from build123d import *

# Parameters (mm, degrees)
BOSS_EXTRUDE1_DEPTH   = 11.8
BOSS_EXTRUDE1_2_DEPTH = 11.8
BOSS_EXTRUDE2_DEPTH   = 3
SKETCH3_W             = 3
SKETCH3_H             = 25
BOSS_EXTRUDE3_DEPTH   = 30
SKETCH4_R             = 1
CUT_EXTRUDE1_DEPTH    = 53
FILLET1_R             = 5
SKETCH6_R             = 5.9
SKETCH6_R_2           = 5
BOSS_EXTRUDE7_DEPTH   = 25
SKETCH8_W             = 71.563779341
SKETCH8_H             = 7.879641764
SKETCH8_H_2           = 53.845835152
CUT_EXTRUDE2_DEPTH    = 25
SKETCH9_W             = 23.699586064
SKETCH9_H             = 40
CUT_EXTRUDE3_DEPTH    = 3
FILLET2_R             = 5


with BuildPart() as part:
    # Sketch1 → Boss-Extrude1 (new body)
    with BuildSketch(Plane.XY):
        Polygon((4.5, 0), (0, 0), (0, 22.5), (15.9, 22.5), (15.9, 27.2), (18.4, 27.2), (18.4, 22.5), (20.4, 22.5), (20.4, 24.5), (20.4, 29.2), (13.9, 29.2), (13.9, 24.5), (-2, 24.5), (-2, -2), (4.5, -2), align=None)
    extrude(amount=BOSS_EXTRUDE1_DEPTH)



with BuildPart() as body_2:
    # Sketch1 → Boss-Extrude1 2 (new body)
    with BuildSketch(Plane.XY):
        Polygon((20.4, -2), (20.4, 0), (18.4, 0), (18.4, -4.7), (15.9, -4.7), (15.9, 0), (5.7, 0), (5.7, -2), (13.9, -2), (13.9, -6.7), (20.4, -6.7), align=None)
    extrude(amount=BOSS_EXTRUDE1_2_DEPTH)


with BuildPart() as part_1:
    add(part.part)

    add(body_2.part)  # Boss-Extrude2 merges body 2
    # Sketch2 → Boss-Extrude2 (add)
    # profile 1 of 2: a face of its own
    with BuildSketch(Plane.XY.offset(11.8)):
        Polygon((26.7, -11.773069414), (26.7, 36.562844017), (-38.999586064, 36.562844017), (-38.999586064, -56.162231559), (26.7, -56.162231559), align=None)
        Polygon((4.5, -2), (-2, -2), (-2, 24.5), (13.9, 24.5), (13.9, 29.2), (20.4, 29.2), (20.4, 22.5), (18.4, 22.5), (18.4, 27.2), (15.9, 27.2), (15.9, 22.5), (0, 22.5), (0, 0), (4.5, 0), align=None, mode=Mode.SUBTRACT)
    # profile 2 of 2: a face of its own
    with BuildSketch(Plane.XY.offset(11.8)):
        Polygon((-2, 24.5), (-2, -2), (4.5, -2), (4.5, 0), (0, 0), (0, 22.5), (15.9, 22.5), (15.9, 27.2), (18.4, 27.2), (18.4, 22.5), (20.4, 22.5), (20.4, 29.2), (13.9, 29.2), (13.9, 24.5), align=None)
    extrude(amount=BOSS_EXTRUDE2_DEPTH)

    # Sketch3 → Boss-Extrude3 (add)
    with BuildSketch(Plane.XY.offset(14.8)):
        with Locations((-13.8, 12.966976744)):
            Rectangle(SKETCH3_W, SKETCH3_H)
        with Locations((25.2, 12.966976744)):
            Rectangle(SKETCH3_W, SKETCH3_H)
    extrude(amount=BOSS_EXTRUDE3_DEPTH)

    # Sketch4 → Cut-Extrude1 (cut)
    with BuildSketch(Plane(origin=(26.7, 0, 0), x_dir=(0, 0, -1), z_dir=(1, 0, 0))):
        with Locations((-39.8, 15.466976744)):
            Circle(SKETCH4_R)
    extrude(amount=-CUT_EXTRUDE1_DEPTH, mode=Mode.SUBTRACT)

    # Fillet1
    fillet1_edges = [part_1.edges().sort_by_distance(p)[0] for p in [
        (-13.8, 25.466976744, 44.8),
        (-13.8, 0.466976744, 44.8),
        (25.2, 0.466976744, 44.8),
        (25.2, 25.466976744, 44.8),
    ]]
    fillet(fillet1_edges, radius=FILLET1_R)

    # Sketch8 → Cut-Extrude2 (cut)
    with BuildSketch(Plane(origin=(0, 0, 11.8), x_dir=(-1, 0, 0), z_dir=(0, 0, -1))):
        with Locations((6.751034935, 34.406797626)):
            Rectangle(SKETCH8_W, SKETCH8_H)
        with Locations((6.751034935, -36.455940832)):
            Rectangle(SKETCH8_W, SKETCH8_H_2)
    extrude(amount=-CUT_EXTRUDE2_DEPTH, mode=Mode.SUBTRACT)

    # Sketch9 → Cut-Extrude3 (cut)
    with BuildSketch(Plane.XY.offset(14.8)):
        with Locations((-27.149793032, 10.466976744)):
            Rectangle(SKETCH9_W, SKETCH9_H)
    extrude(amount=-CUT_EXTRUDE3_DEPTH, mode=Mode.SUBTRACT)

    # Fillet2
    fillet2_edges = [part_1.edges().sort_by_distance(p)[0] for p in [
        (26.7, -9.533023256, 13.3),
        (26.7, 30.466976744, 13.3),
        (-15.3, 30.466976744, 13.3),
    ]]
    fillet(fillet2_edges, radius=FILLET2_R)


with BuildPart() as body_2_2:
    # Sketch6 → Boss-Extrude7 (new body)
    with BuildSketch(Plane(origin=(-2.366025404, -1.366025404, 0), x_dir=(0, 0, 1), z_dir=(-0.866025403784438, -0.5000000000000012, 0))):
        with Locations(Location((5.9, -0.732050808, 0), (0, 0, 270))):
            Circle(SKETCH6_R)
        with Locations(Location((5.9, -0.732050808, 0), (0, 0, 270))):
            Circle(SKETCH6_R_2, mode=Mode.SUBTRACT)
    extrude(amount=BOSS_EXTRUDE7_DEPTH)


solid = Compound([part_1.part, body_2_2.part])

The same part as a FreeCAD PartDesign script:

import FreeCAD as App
import Part
import Sketcher
from FreeCAD import Vector


def edges_at(feature, points):
    """Names of the edges that pass closest to the given points."""
    edges = feature.Shape.Edges
    near = lambda p: min(range(len(edges)), key=lambda i: edges[i].distToShape(Part.Vertex(*p))[0])
    return sorted({f"Edge{near(p) + 1}" for p in points})

doc = App.newDocument("Part")
body = doc.addObject("PartDesign::Body", "Body")

# Sketch on XY plane
sketch1 = body.newObject("Sketcher::SketchObject", "Sketch")
sketch1.AttachmentSupport = (doc.getObject("XY_Plane"), [""])
sketch1.MapMode = "FlatFace"
sketch1.addGeometry([
    Part.LineSegment(Vector(4.5, 0, 0), Vector(0, 0, 0)),  # 0
    Part.LineSegment(Vector(0, 0, 0), Vector(0, 22.5, 0)),  # 1
    Part.LineSegment(Vector(0, 22.5, 0), Vector(15.9, 22.5, 0)),  # 2
    Part.LineSegment(Vector(15.9, 22.5, 0), Vector(15.9, 27.2, 0)),  # 3
    Part.LineSegment(Vector(15.9, 27.2, 0), Vector(18.4, 27.2, 0)),  # 4
    Part.LineSegment(Vector(18.4, 27.2, 0), Vector(18.4, 22.5, 0)),  # 5
    Part.LineSegment(Vector(18.4, 22.5, 0), Vector(20.4, 22.5, 0)),  # 6
    Part.LineSegment(Vector(20.4, 22.5, 0), Vector(20.4, 29.2, 0)),  # 7
    Part.LineSegment(Vector(20.4, 29.2, 0), Vector(13.9, 29.2, 0)),  # 8
    Part.LineSegment(Vector(13.9, 29.2, 0), Vector(13.9, 24.5, 0)),  # 9
    Part.LineSegment(Vector(13.9, 24.5, 0), Vector(-2, 24.5, 0)),  # 10
    Part.LineSegment(Vector(-2, 24.5, 0), Vector(-2, -2, 0)),  # 11
    Part.LineSegment(Vector(-2, -2, 0), Vector(4.5, -2, 0)),  # 12
    Part.LineSegment(Vector(4.5, -2, 0), Vector(4.5, 0, 0)),  # 13
], False)
sketch1.addConstraint([
    Sketcher.Constraint("Coincident", 0, 2, 1, 1),
    Sketcher.Constraint("Coincident", 1, 2, 2, 1),
    Sketcher.Constraint("Coincident", 2, 2, 3, 1),
    Sketcher.Constraint("Coincident", 3, 2, 4, 1),
    Sketcher.Constraint("Coincident", 4, 2, 5, 1),
    Sketcher.Constraint("Coincident", 5, 2, 6, 1),
    Sketcher.Constraint("Coincident", 6, 2, 7, 1),
    Sketcher.Constraint("Coincident", 7, 2, 8, 1),
    Sketcher.Constraint("Coincident", 8, 2, 9, 1),
    Sketcher.Constraint("Coincident", 9, 2, 10, 1),
    Sketcher.Constraint("Coincident", 10, 2, 11, 1),
    Sketcher.Constraint("Coincident", 11, 2, 12, 1),
    Sketcher.Constraint("Coincident", 12, 2, 13, 1),
    Sketcher.Constraint("Coincident", 13, 2, 0, 1),
    Sketcher.Constraint("Horizontal", 0),
    Sketcher.Constraint("Vertical", 1),
    Sketcher.Constraint("Horizontal", 2),
    Sketcher.Constraint("Vertical", 3),
    Sketcher.Constraint("Horizontal", 4),
    Sketcher.Constraint("Vertical", 5),
    Sketcher.Constraint("Horizontal", 6),
    Sketcher.Constraint("Vertical", 7),
    Sketcher.Constraint("Horizontal", 8),
    Sketcher.Constraint("Vertical", 9),
    Sketcher.Constraint("Horizontal", 10),
    Sketcher.Constraint("Vertical", 11),
    Sketcher.Constraint("Horizontal", 12),
    Sketcher.Constraint("Vertical", 13),
    Sketcher.Constraint("Coincident", 0, 2, -1, 1),
    Sketcher.Constraint("Horizontal", 2, 2, 5, 2),
    Sketcher.Constraint("Equal", 2, 10),
    Sketcher.Constraint("Equal", 8, 12),
    Sketcher.Constraint("Equal", 5, 9),
    Sketcher.Constraint("Equal", 6, 13),
    Sketcher.Constraint("DistanceX", 6, 1, 6, 2, 2.0),
    Sketcher.Constraint("DistanceX", 0, 2, 0, 1, 4.5),
    Sketcher.Constraint("DistanceX", 2, 1, 2, 2, 15.9),
    Sketcher.Constraint("DistanceX", 8, 2, 8, 1, 6.5),
    Sketcher.Constraint("DistanceY", 1, 1, 1, 2, 22.5),
    Sketcher.Constraint("DistanceY", 3, 1, 3, 2, 4.7),
    Sketcher.Constraint("DistanceY", 7, 1, 7, 2, 6.7),
])
pad1 = body.newObject("PartDesign::Pad", "Pad")
pad1.Profile = sketch1
pad1.Length = 11.8
body2 = doc.addObject("PartDesign::Body", "Body001")

# Sketch on XY plane
sketch2 = body2.newObject("Sketcher::SketchObject", "Sketch001")
sketch2.AttachmentSupport = (doc.getObject("XY_Plane001"), [""])
sketch2.MapMode = "FlatFace"
sketch2.addGeometry([
    Part.LineSegment(Vector(20.4, 0, 0), Vector(18.4, 0, 0)),  # 0
    Part.LineSegment(Vector(18.4, 0, 0), Vector(18.4, -4.7, 0)),  # 1
    Part.LineSegment(Vector(18.4, -4.7, 0), Vector(15.9, -4.7, 0)),  # 2
    Part.LineSegment(Vector(15.9, -4.7, 0), Vector(15.9, 0, 0)),  # 3
    Part.LineSegment(Vector(15.9, 0, 0), Vector(5.7, 0, 0)),  # 4
    Part.LineSegment(Vector(5.7, 0, 0), Vector(5.7, -2, 0)),  # 5
    Part.LineSegment(Vector(5.7, -2, 0), Vector(13.9, -2, 0)),  # 6
    Part.LineSegment(Vector(13.9, -2, 0), Vector(13.9, -6.7, 0)),  # 7
    Part.LineSegment(Vector(13.9, -6.7, 0), Vector(20.4, -6.7, 0)),  # 8
    Part.LineSegment(Vector(20.4, -6.7, 0), Vector(20.4, 0, 0)),  # 9
], False)
sketch2.addConstraint([
    Sketcher.Constraint("Coincident", 0, 2, 1, 1),
    Sketcher.Constraint("Coincident", 1, 2, 2, 1),
    Sketcher.Constraint("Coincident", 2, 2, 3, 1),
    Sketcher.Constraint("Coincident", 3, 2, 4, 1),
    Sketcher.Constraint("Coincident", 4, 2, 5, 1),
    Sketcher.Constraint("Coincident", 5, 2, 6, 1),
    Sketcher.Constraint("Coincident", 6, 2, 7, 1),
    Sketcher.Constraint("Coincident", 7, 2, 8, 1),
    Sketcher.Constraint("Coincident", 8, 2, 9, 1),
    Sketcher.Constraint("Coincident", 9, 2, 0, 1),
    Sketcher.Constraint("Horizontal", 0),
    Sketcher.Constraint("Vertical", 1),
    Sketcher.Constraint("Horizontal", 2),
    Sketcher.Constraint("Vertical", 3),
    Sketcher.Constraint("Horizontal", 4),
    Sketcher.Constraint("Vertical", 5),
    Sketcher.Constraint("Horizontal", 6),
    Sketcher.Constraint("Vertical", 7),
    Sketcher.Constraint("Horizontal", 8),
    Sketcher.Constraint("Vertical", 9),
    Sketcher.Constraint("PointOnObject", 0, 2, -1),
    Sketcher.Constraint("PointOnObject", 3, 2, -1),
    Sketcher.Constraint("Equal", 0, 5),
    Sketcher.Constraint("Equal", 3, 7),
    Sketcher.Constraint("DistanceX", 0, 2, 0, 1, 2.0),
    Sketcher.Constraint("DistanceX", 2, 2, 2, 1, 2.5),
    Sketcher.Constraint("DistanceX", 4, 2, 4, 1, 10.2),
    Sketcher.Constraint("DistanceX", 6, 1, 6, 2, 8.2),
    Sketcher.Constraint("DistanceY", 1, 2, 1, 1, 4.7),
    Sketcher.Constraint("DistanceX", -1, 1, 0, 2, 18.4),
])
pad2 = body2.newObject("PartDesign::Pad", "Pad001")
pad2.Profile = sketch2
pad2.Length = 11.8
body.AllowCompound = True
doc.recompute()

boolean = body.newObject("PartDesign::Boolean", "Boolean")
boolean.Type = "Fuse"
boolean.addObjects([body2])

# Sketch on XY plane
sketch3 = body.newObject("Sketcher::SketchObject", "Sketch002")
sketch3.AttachmentSupport = (doc.getObject("XY_Plane"), [""])
sketch3.MapMode = "FlatFace"
sketch3.AttachmentOffset = App.Placement(Vector(0, 0, 11.8), App.Rotation())
sketch3.addGeometry([
    Part.LineSegment(Vector(27, 37, 0), Vector(-39, 37, 0)),
    Part.LineSegment(Vector(-39, 37, 0), Vector(-39, -56, 0)),
    Part.LineSegment(Vector(-39, -56, 0), Vector(27, -56, 0)),
    Part.LineSegment(Vector(27, -56, 0), Vector(27, 37, 0)),
], False)
sketch3.addConstraint([
    Sketcher.Constraint("Coincident", 0, 2, 1, 1),
    Sketcher.Constraint("Coincident", 1, 2, 2, 1),
    Sketcher.Constraint("Coincident", 2, 2, 3, 1),
    Sketcher.Constraint("Coincident", 3, 2, 0, 1),
    Sketcher.Constraint("Horizontal", 0),
    Sketcher.Constraint("Vertical", 1),
    Sketcher.Constraint("Horizontal", 2),
    Sketcher.Constraint("Vertical", 3),
    Sketcher.Constraint("DistanceX", -1, 1, 2, 2, 26.7),
    Sketcher.Constraint("DistanceX", 0, 2, 0, 1, 65.699586),
    Sketcher.Constraint("DistanceY", 1, 2, 1, 1, 92.725076),
    Sketcher.Constraint("DistanceY", 1, 2, -1, 1, 56.162232),
])
pad3 = body.newObject("PartDesign::Pad", "Pad002")
pad3.Profile = sketch3
pad3.Length = 3

# Sketch on XY plane
sketch4 = body.newObject("Sketcher::SketchObject", "Sketch003")
sketch4.AttachmentSupport = (doc.getObject("XY_Plane"), [""])
sketch4.MapMode = "FlatFace"
sketch4.AttachmentOffset = App.Placement(Vector(0, 0, 14.8), App.Rotation())
sketch4.addGeometry([
    Part.LineSegment(Vector(-15.3, 25.5, 0), Vector(-15.3, 0.5, 0)),  # 0
    Part.LineSegment(Vector(-15.3, 0.5, 0), Vector(-12.3, 0.5, 0)),  # 1
    Part.LineSegment(Vector(-12.3, 0.5, 0), Vector(-12.3, 25.5, 0)),  # 2
    Part.LineSegment(Vector(-12.3, 25.5, 0), Vector(-15.3, 25.5, 0)),  # 3
    Part.LineSegment(Vector(23.7, 25.5, 0), Vector(23.7, 0.5, 0)),  # 4
    Part.LineSegment(Vector(23.7, 0.5, 0), Vector(26.7, 0.5, 0)),  # 5
    Part.LineSegment(Vector(26.7, 0.5, 0), Vector(26.7, 25.5, 0)),  # 6
    Part.LineSegment(Vector(26.7, 25.5, 0), Vector(23.7, 25.5, 0)),  # 7
], False)
sketch4.addConstraint([
    Sketcher.Constraint("Coincident", 0, 2, 1, 1),
    Sketcher.Constraint("Coincident", 1, 2, 2, 1),
    Sketcher.Constraint("Coincident", 2, 2, 3, 1),
    Sketcher.Constraint("Coincident", 3, 2, 0, 1),
    Sketcher.Constraint("Coincident", 4, 2, 5, 1),
    Sketcher.Constraint("Coincident", 5, 2, 6, 1),
    Sketcher.Constraint("Coincident", 6, 2, 7, 1),
    Sketcher.Constraint("Coincident", 7, 2, 4, 1),
    Sketcher.Constraint("Vertical", 0),
    Sketcher.Constraint("Horizontal", 1),
    Sketcher.Constraint("Vertical", 2),
    Sketcher.Constraint("Horizontal", 3),
    Sketcher.Constraint("Vertical", 4),
    Sketcher.Constraint("Horizontal", 5),
    Sketcher.Constraint("Vertical", 6),
    Sketcher.Constraint("Horizontal", 7),
    Sketcher.Constraint("Horizontal", 1, 2, 4, 2),
    Sketcher.Constraint("Horizontal", 3, 2, 6, 2),
    Sketcher.Constraint("Equal", 3, 5),
    Sketcher.Constraint("DistanceX", 1, 1, 1, 2, 3.0),
    Sketcher.Constraint("DistanceY", 0, 2, 0, 1, 25.0),
    Sketcher.Constraint("DistanceX", 1, 2, 4, 2, 36.0),
    Sketcher.Constraint("DistanceX", 0, 2, -1, 1, 15.3),
    Sketcher.Constraint("DistanceY", -1, 1, 0, 2, 0.466977),
])
pad4 = body.newObject("PartDesign::Pad", "Pad003")
pad4.Profile = sketch4
pad4.Length = 30

# Sketch on YZ plane
sketch5 = body.newObject("Sketcher::SketchObject", "Sketch004")
sketch5.AttachmentSupport = (doc.getObject("YZ_Plane"), [""])
sketch5.MapMode = "FlatFace"
sketch5.AttachmentOffset = App.Placement(Vector(0, 0, 26.7), App.Rotation())
sketch5.addGeometry(Part.Circle(Vector(15.5, 39.8, 0), Vector(0, 0, 1), 1), False)
sketch5.addConstraint([
    Sketcher.Constraint("Diameter", 0, 2.0),
    Sketcher.Constraint("DistanceY", -1, 1, 0, 3, 39.8),
    Sketcher.Constraint("DistanceX", -1, 1, 0, 3, 15.466977),
])
pocket1 = body.newObject("PartDesign::Pocket", "Pocket")
pocket1.Profile = sketch5
pocket1.Length = 53
doc.recompute()

fillet = body.newObject("PartDesign::Fillet", "Fillet")
fillet.Base = (pocket1, edges_at(pocket1, [
    (-13.8, 25.467, 44.8),
    (-13.8, 0.467, 44.8),
    (25.2, 0.467, 44.8),
    (25.2, 25.467, 44.8),
]))
fillet.Radius = 5

# Sketch on XY plane
sketch6 = body.newObject("Sketcher::SketchObject", "Sketch005")
sketch6.AttachmentSupport = (doc.getObject("XY_Plane"), [""])
sketch6.MapMode = "FlatFace"
sketch6.AttachmentOffset = App.Placement(Vector(0, 0, 11.8), App.Rotation())
sketch6.addGeometry([
    Part.LineSegment(Vector(29, 38, 0), Vector(29, 30, 0)),  # 0
    Part.LineSegment(Vector(29, 30, 0), Vector(-43, 30, 0)),  # 1
    Part.LineSegment(Vector(-43, 30, 0), Vector(-43, 38, 0)),  # 2
    Part.LineSegment(Vector(-43, 38, 0), Vector(29, 38, 0)),  # 3
    Part.LineSegment(Vector(29, -10, 0), Vector(29, -63, 0)),  # 4
    Part.LineSegment(Vector(29, -63, 0), Vector(-43, -63, 0)),  # 5
    Part.LineSegment(Vector(-43, -63, 0), Vector(-43, -10, 0)),  # 6
    Part.LineSegment(Vector(-43, -10, 0), Vector(29, -10, 0)),  # 7
], False)
sketch6.addConstraint([
    Sketcher.Constraint("Coincident", 0, 2, 1, 1),
    Sketcher.Constraint("Coincident", 1, 2, 2, 1),
    Sketcher.Constraint("Coincident", 2, 2, 3, 1),
    Sketcher.Constraint("Coincident", 3, 2, 0, 1),
    Sketcher.Constraint("Coincident", 4, 2, 5, 1),
    Sketcher.Constraint("Coincident", 5, 2, 6, 1),
    Sketcher.Constraint("Coincident", 6, 2, 7, 1),
    Sketcher.Constraint("Coincident", 7, 2, 4, 1),
    Sketcher.Constraint("Vertical", 0),
    Sketcher.Constraint("Horizontal", 1),
    Sketcher.Constraint("Vertical", 2),
    Sketcher.Constraint("Horizontal", 3),
    Sketcher.Constraint("Vertical", 4),
    Sketcher.Constraint("Horizontal", 5),
    Sketcher.Constraint("Vertical", 6),
    Sketcher.Constraint("Horizontal", 7),
    Sketcher.Constraint("Vertical", 3, 2, 4, 2),
    Sketcher.Constraint("Vertical", 2, 2, 5, 2),
    Sketcher.Constraint("DistanceY", 6, 2, 1, 2, 40.0),
    Sketcher.Constraint("DistanceX", 1, 2, 1, 1, 71.563779),
    Sketcher.Constraint("DistanceY", 0, 2, 0, 1, 7.879642),
    Sketcher.Constraint("DistanceY", 4, 2, 4, 1, 53.845835),
    Sketcher.Constraint("DistanceY", -1, 1, 2, 2, 38.346619),
    Sketcher.Constraint("DistanceX", -1, 1, 0, 2, 29.030855),
])
pocket2 = body.newObject("PartDesign::Pocket", "Pocket001")
pocket2.Profile = sketch6
pocket2.Length = 25
pocket2.Reversed = True

# Sketch on XY plane
sketch7 = body.newObject("Sketcher::SketchObject", "Sketch006")
sketch7.AttachmentSupport = (doc.getObject("XY_Plane"), [""])
sketch7.MapMode = "FlatFace"
sketch7.AttachmentOffset = App.Placement(Vector(0, 0, 14.8), App.Rotation())
sketch7.addGeometry([
    Part.LineSegment(Vector(-39, 30, 0), Vector(-39, -10, 0)),
    Part.LineSegment(Vector(-39, -10, 0), Vector(-15, -10, 0)),
    Part.LineSegment(Vector(-15, -10, 0), Vector(-15, 30, 0)),
    Part.LineSegment(Vector(-15, 30, 0), Vector(-39, 30, 0)),
], False)
sketch7.addConstraint([
    Sketcher.Constraint("Coincident", 0, 2, 1, 1),
    Sketcher.Constraint("Coincident", 1, 2, 2, 1),
    Sketcher.Constraint("Coincident", 2, 2, 3, 1),
    Sketcher.Constraint("Coincident", 3, 2, 0, 1),
    Sketcher.Constraint("Vertical", 0),
    Sketcher.Constraint("Horizontal", 1),
    Sketcher.Constraint("Vertical", 2),
    Sketcher.Constraint("Horizontal", 3),
    Sketcher.Constraint("DistanceY", 0, 2, 0, 1, 40.0),
    Sketcher.Constraint("DistanceX", 1, 2, -1, 1, 15.3),
    Sketcher.Constraint("DistanceX", 1, 1, 1, 2, 23.699586),
    Sketcher.Constraint("DistanceY", 0, 2, -1, 1, 9.533023),
])
pocket3 = body.newObject("PartDesign::Pocket", "Pocket002")
pocket3.Profile = sketch7
pocket3.Length = 3
doc.recompute()

fillet2 = body.newObject("PartDesign::Fillet", "Fillet001")
fillet2.Base = (pocket3, edges_at(pocket3, [(26.7, -9.533, 13.3), (26.7, 30.467, 13.3), (-15.3, 30.467, 13.3)]))
fillet2.Radius = 5
body3 = doc.addObject("PartDesign::Body", "Body002")

# Sketch on an angled plane
sketch8 = body3.newObject("Sketcher::SketchObject", "Sketch007")
sketch8.Placement = App.Placement(Vector(-2.366025, -1.366025, 0), App.Rotation(Vector(0, 0, 1), Vector(-0.5, 0.866025404, 0), Vector(-0.866025404, -0.5, 0), "ZXY"))
sketch8.addGeometry([
    Part.Circle(Vector(6, -1, 0), Vector(0, 0, 1), 6),
    Part.Circle(Vector(6, -1, 0), Vector(0, 0, 1), 5),
], False)
sketch8.addConstraint([
    Sketcher.Constraint("Coincident", 1, 3, 0, 3),
    Sketcher.Constraint("Diameter", 1, 10.0),
    Sketcher.Constraint("Diameter", 0, 11.8),
    Sketcher.Constraint("DistanceX", -1, 1, 0, 3, 5.9),
    Sketcher.Constraint("DistanceY", 0, 3, -1, 1, 0.732051),
])
pad5 = body3.newObject("PartDesign::Pad", "Pad004")
pad5.Profile = sketch8
pad5.Length = 25

doc.recompute()
